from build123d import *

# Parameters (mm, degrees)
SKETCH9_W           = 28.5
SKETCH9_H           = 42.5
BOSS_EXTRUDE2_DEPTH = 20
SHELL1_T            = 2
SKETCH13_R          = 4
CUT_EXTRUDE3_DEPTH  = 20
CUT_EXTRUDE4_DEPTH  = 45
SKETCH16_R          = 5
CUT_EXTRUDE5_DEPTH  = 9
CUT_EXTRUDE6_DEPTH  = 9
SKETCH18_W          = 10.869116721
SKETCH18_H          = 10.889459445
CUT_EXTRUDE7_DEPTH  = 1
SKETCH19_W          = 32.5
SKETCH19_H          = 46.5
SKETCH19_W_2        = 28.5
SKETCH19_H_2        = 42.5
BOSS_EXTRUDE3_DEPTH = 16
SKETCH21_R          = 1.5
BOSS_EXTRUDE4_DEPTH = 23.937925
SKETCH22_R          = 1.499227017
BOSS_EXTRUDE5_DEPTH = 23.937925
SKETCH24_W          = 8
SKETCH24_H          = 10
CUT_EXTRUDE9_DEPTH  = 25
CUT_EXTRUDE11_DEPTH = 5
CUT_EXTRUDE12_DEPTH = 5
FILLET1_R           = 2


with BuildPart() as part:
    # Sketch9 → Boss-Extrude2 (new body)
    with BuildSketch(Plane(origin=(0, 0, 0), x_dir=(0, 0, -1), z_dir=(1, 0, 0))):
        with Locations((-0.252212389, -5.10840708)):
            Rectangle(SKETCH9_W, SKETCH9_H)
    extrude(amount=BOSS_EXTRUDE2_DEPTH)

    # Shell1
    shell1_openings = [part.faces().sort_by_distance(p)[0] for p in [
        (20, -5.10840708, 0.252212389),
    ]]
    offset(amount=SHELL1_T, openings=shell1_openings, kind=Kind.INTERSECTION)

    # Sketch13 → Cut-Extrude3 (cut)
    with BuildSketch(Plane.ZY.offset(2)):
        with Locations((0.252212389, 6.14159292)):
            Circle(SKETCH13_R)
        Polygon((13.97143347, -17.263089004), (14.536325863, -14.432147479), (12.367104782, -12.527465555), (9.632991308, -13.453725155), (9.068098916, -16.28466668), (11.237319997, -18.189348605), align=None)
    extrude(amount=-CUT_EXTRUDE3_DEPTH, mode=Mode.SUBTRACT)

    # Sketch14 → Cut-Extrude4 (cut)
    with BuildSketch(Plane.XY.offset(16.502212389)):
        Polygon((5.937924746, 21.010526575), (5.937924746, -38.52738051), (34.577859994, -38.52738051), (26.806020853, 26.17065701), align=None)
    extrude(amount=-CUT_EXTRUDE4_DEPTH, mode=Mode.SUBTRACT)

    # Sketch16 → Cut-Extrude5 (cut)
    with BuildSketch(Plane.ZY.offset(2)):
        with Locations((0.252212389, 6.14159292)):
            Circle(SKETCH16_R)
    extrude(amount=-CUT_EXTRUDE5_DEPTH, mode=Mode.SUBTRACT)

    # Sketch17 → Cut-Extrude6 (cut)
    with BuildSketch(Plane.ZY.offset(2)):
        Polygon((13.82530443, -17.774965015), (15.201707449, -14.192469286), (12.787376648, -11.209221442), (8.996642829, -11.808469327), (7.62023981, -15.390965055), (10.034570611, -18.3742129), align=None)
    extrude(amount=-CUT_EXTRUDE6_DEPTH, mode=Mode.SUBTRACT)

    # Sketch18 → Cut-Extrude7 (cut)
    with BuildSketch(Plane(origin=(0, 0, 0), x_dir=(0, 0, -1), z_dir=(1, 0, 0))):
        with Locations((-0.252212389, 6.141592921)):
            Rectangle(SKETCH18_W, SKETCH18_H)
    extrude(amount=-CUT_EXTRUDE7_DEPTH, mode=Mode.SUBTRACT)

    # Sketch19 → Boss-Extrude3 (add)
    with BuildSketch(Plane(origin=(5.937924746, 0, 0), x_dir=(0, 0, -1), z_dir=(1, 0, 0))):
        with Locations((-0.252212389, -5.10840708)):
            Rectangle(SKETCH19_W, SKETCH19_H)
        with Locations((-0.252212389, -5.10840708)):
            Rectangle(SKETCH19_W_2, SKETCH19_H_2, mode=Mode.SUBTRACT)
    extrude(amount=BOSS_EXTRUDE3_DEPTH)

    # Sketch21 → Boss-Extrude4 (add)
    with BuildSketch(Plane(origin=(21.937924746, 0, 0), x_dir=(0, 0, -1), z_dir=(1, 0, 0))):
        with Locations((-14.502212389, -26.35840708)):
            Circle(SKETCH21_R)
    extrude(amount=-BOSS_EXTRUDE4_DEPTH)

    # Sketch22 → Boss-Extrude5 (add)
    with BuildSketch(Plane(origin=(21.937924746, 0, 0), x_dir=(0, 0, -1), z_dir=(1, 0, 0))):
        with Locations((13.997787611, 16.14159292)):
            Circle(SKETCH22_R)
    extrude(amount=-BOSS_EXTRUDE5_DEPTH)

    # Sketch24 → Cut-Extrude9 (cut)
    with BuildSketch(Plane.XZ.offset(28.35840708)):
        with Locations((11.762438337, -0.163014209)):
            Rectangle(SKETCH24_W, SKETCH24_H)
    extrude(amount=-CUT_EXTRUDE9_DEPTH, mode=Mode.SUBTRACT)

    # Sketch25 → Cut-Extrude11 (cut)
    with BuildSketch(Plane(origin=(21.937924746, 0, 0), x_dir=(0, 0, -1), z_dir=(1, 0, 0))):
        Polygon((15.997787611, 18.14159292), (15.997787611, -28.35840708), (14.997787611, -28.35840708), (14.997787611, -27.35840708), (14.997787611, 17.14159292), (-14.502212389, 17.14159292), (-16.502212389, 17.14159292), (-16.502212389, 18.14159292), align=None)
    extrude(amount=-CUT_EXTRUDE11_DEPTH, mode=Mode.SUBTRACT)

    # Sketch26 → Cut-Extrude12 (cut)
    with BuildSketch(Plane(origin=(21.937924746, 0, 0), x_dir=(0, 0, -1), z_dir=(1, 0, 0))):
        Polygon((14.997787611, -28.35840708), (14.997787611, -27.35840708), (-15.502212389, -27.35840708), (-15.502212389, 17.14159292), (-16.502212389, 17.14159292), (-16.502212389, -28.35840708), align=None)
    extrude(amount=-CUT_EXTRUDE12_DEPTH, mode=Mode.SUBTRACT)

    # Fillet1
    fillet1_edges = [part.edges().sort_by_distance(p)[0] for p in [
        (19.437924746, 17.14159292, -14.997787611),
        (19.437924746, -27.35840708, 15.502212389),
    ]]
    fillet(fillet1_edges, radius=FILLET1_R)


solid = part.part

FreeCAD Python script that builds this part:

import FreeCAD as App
import Part
import Sketcher


def edges_at(feature, points):
    """Names of the edges that pass closest to the given points."""
    edges = feature.Shape.Edges
    near = lambda p: min(range(len(edges)), key=lambda i: edges[i].distToShape(Part.Vertex(*p))[0])
    return sorted({f"Edge{near(p) + 1}" for p in points})


def faces_at(feature, points):
    """Names of the faces that lie closest to the given points."""
    faces = feature.Shape.Faces
    near = lambda p: min(range(len(faces)), key=lambda i: faces[i].distToShape(Part.Vertex(*p))[0])
    return sorted({f"Face{near(p) + 1}" for p in points})


def add_polygon(sketch, points):
    """Adds a closed chain of lines whose ends are joined by coincident constraints."""
    first, n = sketch.GeometryCount, len(points)
    for a, b in zip(points, points[1:] + points[:1]):
        sketch.addGeometry(Part.LineSegment(App.Vector(*a, 0), App.Vector(*b, 0)), False)
    for i in range(n):
        sketch.addConstraint(Sketcher.Constraint("Coincident", first + i, 2, first + (i + 1) % n, 1))

doc = App.newDocument("Part")
body = doc.addObject("PartDesign::Body", "Body")

# Sketch on YZ plane
sketch1 = body.newObject("Sketcher::SketchObject", "Sketch")
sketch1.AttachmentSupport = (doc.getObject("YZ_Plane"), [""])
sketch1.MapMode = "FlatFace"
add_polygon(sketch1, [(16, 15), (-26, 15), (-26, -14), (16, -14)])  # lines 0-3
sketch1.addConstraint(Sketcher.Constraint("Horizontal", 0))
sketch1.addConstraint(Sketcher.Constraint("Vertical", 1))
sketch1.addConstraint(Sketcher.Constraint("Horizontal", 2))
sketch1.addConstraint(Sketcher.Constraint("Vertical", 3))
sketch1.addConstraint(Sketcher.Constraint("DistanceX", 0, 2, 0, 1, 42.5))
sketch1.addConstraint(Sketcher.Constraint("DistanceY", 1, 2, 1, 1, 28.5))
sketch1.addConstraint(Sketcher.Constraint("DistanceX", 0, 2, -1, 1, 26.358407))
sketch1.addConstraint(Sketcher.Constraint("DistanceY", -1, 1, 0, 2, 14.502212))
pad1 = body.newObject("PartDesign::Pad", "Pad")
pad1.Profile = sketch1
pad1.Length = 20
doc.recompute()

thickness = body.newObject("PartDesign::Thickness", "Thickness")
thickness.Base = (pad1, faces_at(pad1, [(20, -5.108, 0.252)]))
thickness.Value = 2
thickness.Reversed = False
thickness.Join = "Intersection"

# Sketch on YZ plane
sketch2 = body.newObject("Sketcher::SketchObject", "Sketch001")
sketch2.AttachmentSupport = (doc.getObject("YZ_Plane"), [""])
sketch2.MapMode = "FlatFace"
sketch2.AttachmentOffset = App.Placement(App.Vector(0, 0, -2), App.Rotation())
sketch2.addGeometry(Part.Circle(App.Vector(6.1, 0.3, 0), App.Vector(0, 0, 1), 4), False)  # 0
add_polygon(sketch2, [(-17.3, 14), (-14.4, 14.5), (-12.5, 12.4), (-13.5, 9.6), (-16.3, 9.1), (-18.2, 11.2)])  # lines 1-6
sketch2.addConstraint(Sketcher.Constraint("Parallel", 1, 4))
sketch2.addConstraint(Sketcher.Constraint("Parallel", 2, 5))
sketch2.addConstraint(Sketcher.Constraint("Parallel", 3, 6))
sketch2.addConstraint(Sketcher.Constraint("Equal", 1, 2))
sketch2.addConstraint(Sketcher.Constraint("Equal", 2, 3))
sketch2.addConstraint(Sketcher.Constraint("Equal", 3, 4))
sketch2.addConstraint(Sketcher.Constraint("Diameter", 0, 8.0))
sketch2.addConstraint(Sketcher.Constraint("DistanceY", -1, 1, 4, 2, 9.068099))
sketch2.addConstraint(Sketcher.Constraint("DistanceX", 4, 2, 2, 2, 3.757201))
sketch2.addConstraint(Sketcher.Constraint("Distance", 1, 2.886751))
sketch2.addConstraint(Sketcher.Constraint("DistanceY", -1, 1, 3, 2, 9.632991))
sketch2.addConstraint(Sketcher.Constraint("DistanceX", 5, 2, -1, 1, 18.189349))
sketch2.addConstraint(Sketcher.Constraint("DistanceY", -1, 1, 5, 2, 11.23732))
sketch2.addConstraint(Sketcher.Constraint("DistanceX", 1, 2, 0, 3, 20.57374))
sketch2.addConstraint(Sketcher.Constraint("DistanceY", 0, 3, 3, 2, 9.380779))
pocket1 = body.newObject("PartDesign::Pocket", "Pocket")
pocket1.Profile = sketch2
pocket1.Length = 20
pocket1.Reversed = True

# Sketch on XY plane
sketch3 = body.newObject("Sketcher::SketchObject", "Sketch002")
sketch3.AttachmentSupport = (doc.getObject("XY_Plane"), [""])
sketch3.MapMode = "FlatFace"
sketch3.AttachmentOffset = App.Placement(App.Vector(0, 0, 16.502212), App.Rotation())
add_polygon(sketch3, [(6, 21), (6, -39), (35, -39), (27, 26)])  # lines 0-3
sketch3.addConstraint(Sketcher.Constraint("Vertical", 0))
sketch3.addConstraint(Sketcher.Constraint("Horizontal", 1))
sketch3.addConstraint(Sketcher.Constraint("Distance", 2, 65.163161))
sketch3.addConstraint(Sketcher.Constraint("DistanceX", 1, 1, 1, 2, 28.639935))
sketch3.addConstraint(Sketcher.Constraint("DistanceY", 0, 2, 0, 1, 59.537907))
sketch3.addConstraint(Sketcher.Constraint("DistanceY", 0, 2, -1, 1, 38.527381))
sketch3.addConstraint(Sketcher.Constraint("DistanceX", -1, 1, 1, 2, 34.57786))
sketch3.addConstraint(Sketcher.Constraint("DistanceX", -1, 1, 2, 2, 26.806021))
pocket2 = body.newObject("PartDesign::Pocket", "Pocket001")
pocket2.Profile = sketch3
pocket2.Length = 45

# Sketch on YZ plane
sketch4 = body.newObject("Sketcher::SketchObject", "Sketch003")
sketch4.AttachmentSupport = (doc.getObject("YZ_Plane"), [""])
sketch4.MapMode = "FlatFace"
sketch4.AttachmentOffset = App.Placement(App.Vector(0, 0, -2), App.Rotation())
sketch4.addGeometry(Part.Circle(App.Vector(6, 0, 0), App.Vector(0, 0, 1), 5), False)
sketch4.addConstraint(Sketcher.Constraint("Diameter", 0, 10.0))
sketch4.addConstraint(Sketcher.Constraint("DistanceX", -1, 1, 0, 3, 6.141593))
sketch4.addConstraint(Sketcher.Constraint("DistanceY", -1, 1, 0, 3, 0.252212))
pocket3 = body.newObject("PartDesign::Pocket", "Pocket002")
pocket3.Profile = sketch4
pocket3.Length = 9
pocket3.Reversed = True

# Sketch on YZ plane
sketch5 = body.newObject("Sketcher::SketchObject", "Sketch004")
sketch5.AttachmentSupport = (doc.getObject("YZ_Plane"), [""])
sketch5.MapMode = "FlatFace"
sketch5.AttachmentOffset = App.Placement(App.Vector(0, 0, -2), App.Rotation())
add_polygon(sketch5, [(-17.8, 13.8), (-14.2, 15.2), (-11.2, 12.8), (-11.8, 9), (-15.4, 7.6), (-18.4, 10)])  # lines 0-5
sketch5.addConstraint(Sketcher.Constraint("Parallel", 0, 3))
sketch5.addConstraint(Sketcher.Constraint("Parallel", 1, 4))
sketch5.addConstraint(Sketcher.Constraint("Parallel", 2, 5))
sketch5.addConstraint(Sketcher.Constraint("Equal", 0, 1))
sketch5.addConstraint(Sketcher.Constraint("Equal", 1, 2))
sketch5.addConstraint(Sketcher.Constraint("Equal", 2, 3))
sketch5.addConstraint(Sketcher.Constraint("DistanceX", 0, 2, 2, 2, 2.384))
sketch5.addConstraint(Sketcher.Constraint("DistanceX", 0, 2, -1, 1, 14.192469))
sketch5.addConstraint(Sketcher.Constraint("DistanceX", 1, 2, -1, 1, 11.209221))
sketch5.addConstraint(Sketcher.Constraint("DistanceY", -1, 1, 3, 2, 7.62024))
sketch5.addConstraint(Sketcher.Constraint("DistanceY", -1, 1, 4, 2, 10.034571))
sketch5.addConstraint(Sketcher.Constraint("DistanceX", 4, 2, 1, 2, 7.164991))
pocket4 = body.newObject("PartDesign::Pocket", "Pocket003")
pocket4.Profile = sketch5
pocket4.Length = 9
pocket4.Reversed = True

# Sketch on YZ plane
sketch6 = body.newObject("Sketcher::SketchObject", "Sketch005")
sketch6.AttachmentSupport = (doc.getObject("YZ_Plane"), [""])
sketch6.MapMode = "FlatFace"
add_polygon(sketch6, [(12, 6), (1, 6), (1, -5), (12, -5)])  # lines 0-3
sketch6.addConstraint(Sketcher.Constraint("Horizontal", 0))
sketch6.addConstraint(Sketcher.Constraint("Vertical", 1))
sketch6.addConstraint(Sketcher.Constraint("Horizontal", 2))
sketch6.addConstraint(Sketcher.Constraint("Vertical", 3))
sketch6.addConstraint(Sketcher.Constraint("DistanceX", 0, 2, 0, 1, 10.889459))
sketch6.addConstraint(Sketcher.Constraint("DistanceY", 1, 2, 1, 1, 10.869117))
sketch6.addConstraint(Sketcher.Constraint("DistanceY", -1, 1, 0, 2, 5.686771))
sketch6.addConstraint(Sketcher.Constraint("DistanceX", -1, 1, 0, 2, 0.696863))
pocket5 = body.newObject("PartDesign::Pocket", "Pocket004")
pocket5.Profile = sketch6
pocket5.Length = 1

# Sketch on YZ plane
sketch7 = body.newObject("Sketcher::SketchObject", "Sketch006")
sketch7.AttachmentSupport = (doc.getObject("YZ_Plane"), [""])
sketch7.MapMode = "FlatFace"
sketch7.AttachmentOffset = App.Placement(App.Vector(0, 0, 5.937925), App.Rotation())
add_polygon(sketch7, [(18, 17), (-28, 17), (-28, -16), (18, -16)])  # lines 0-3
add_polygon(sketch7, [(-26, -14), (-26, 15), (16, 15), (16, -14)])  # lines 4-7
sketch7.addConstraint(Sketcher.Constraint("Horizontal", 0))
sketch7.addConstraint(Sketcher.Constraint("Vertical", 1))
sketch7.addConstraint(Sketcher.Constraint("Horizontal", 2))
sketch7.addConstraint(Sketcher.Constraint("Vertical", 3))
sketch7.addConstraint(Sketcher.Constraint("Vertical", 4))
sketch7.addConstraint(Sketcher.Constraint("Horizontal", 5))
sketch7.addConstraint(Sketcher.Constraint("Vertical", 6))
sketch7.addConstraint(Sketcher.Constraint("Horizontal", 7))
sketch7.addConstraint(Sketcher.Constraint("DistanceX", 0, 2, 0, 1, 46.5))
sketch7.addConstraint(Sketcher.Constraint("DistanceX", 5, 1, 5, 2, 42.5))
sketch7.addConstraint(Sketcher.Constraint("DistanceY", 1, 2, 1, 1, 32.5))
sketch7.addConstraint(Sketcher.Constraint("DistanceY", 4, 1, 4, 2, 28.5))
sketch7.addConstraint(Sketcher.Constraint("DistanceX", 0, 2, 4, 2, 2.0))
sketch7.addConstraint(Sketcher.Constraint("DistanceY", 4, 2, 0, 2, 2.0))
sketch7.addConstraint(Sketcher.Constraint("DistanceX", 0, 2, -1, 1, 28.358407))
sketch7.addConstraint(Sketcher.Constraint("DistanceY", -1, 1, 0, 2, 16.502212))
pad2 = body.newObject("PartDesign::Pad", "Pad001")
pad2.Profile = sketch7
pad2.Length = 16

# Sketch on YZ plane
sketch8 = body.newObject("Sketcher::SketchObject", "Sketch007")
sketch8.AttachmentSupport = (doc.getObject("YZ_Plane"), [""])
sketch8.MapMode = "FlatFace"
sketch8.AttachmentOffset = App.Placement(App.Vector(0, 0, 21.937925), App.Rotation())
sketch8.addGeometry(Part.Circle(App.Vector(-26.4, 14.5, 0), App.Vector(0, 0, 1), 1.5), False)
sketch8.addConstraint(Sketcher.Constraint("Diameter", 0, 3.0))
sketch8.addConstraint(Sketcher.Constraint("DistanceX", 0, 3, -1, 1, 26.358407))
sketch8.addConstraint(Sketcher.Constraint("DistanceY", -1, 1, 0, 3, 14.502212))
pad3 = body.newObject("PartDesign::Pad", "Pad002")
pad3.Profile = sketch8
pad3.Length = 23.937925
pad3.Reversed = True

# Sketch on YZ plane
sketch9 = body.newObject("Sketcher::SketchObject", "Sketch008")
sketch9.AttachmentSupport = (doc.getObject("YZ_Plane"), [""])
sketch9.MapMode = "FlatFace"
sketch9.AttachmentOffset = App.Placement(App.Vector(0, 0, 21.937925), App.Rotation())
sketch9.addGeometry(Part.Circle(App.Vector(16.1, -14, 0), App.Vector(0, 0, 1), 1.5), False)
sketch9.addConstraint(Sketcher.Constraint("Diameter", 0, 2.998454))
sketch9.addConstraint(Sketcher.Constraint("DistanceX", -1, 1, 0, 3, 16.141593))
sketch9.addConstraint(Sketcher.Constraint("DistanceY", 0, 3, -1, 1, 13.997788))
pad4 = body.newObject("PartDesign::Pad", "Pad003")
pad4.Profile = sketch9
pad4.Length = 23.937925
pad4.Reversed = True

# Sketch on XZ plane
sketch10 = body.newObject("Sketcher::SketchObject", "Sketch009")
sketch10.AttachmentSupport = (doc.getObject("XZ_Plane"), [""])
sketch10.MapMode = "FlatFace"
sketch10.AttachmentOffset = App.Placement(App.Vector(0, 0, 28.358407), App.Rotation())
add_polygon(sketch10, [(8, 5), (8, -5), (16, -5), (16, 5)])  # lines 0-3
sketch10.addConstraint(Sketcher.Constraint("Vertical", 0))
sketch10.addConstraint(Sketcher.Constraint("Horizontal", 1))
sketch10.addConstraint(Sketcher.Constraint("Vertical", 2))
sketch10.addConstraint(Sketcher.Constraint("Horizontal", 3))
sketch10.addConstraint(Sketcher.Constraint("DistanceX", 1, 1, 1, 2, 8.0))
sketch10.addConstraint(Sketcher.Constraint("DistanceY", 0, 2, 0, 1, 10.0))
sketch10.addConstraint(Sketcher.Constraint("DistanceX", -1, 1, 0, 2, 7.762438))
sketch10.addConstraint(Sketcher.Constraint("DistanceY", 0, 2, -1, 1, 5.163014))
pocket6 = body.newObject("PartDesign::Pocket", "Pocket005")
pocket6.Profile = sketch10
pocket6.Length = 25

# Sketch on YZ plane
sketch11 = body.newObject("Sketcher::SketchObject", "Sketch010")
sketch11.AttachmentSupport = (doc.getObject("YZ_Plane"), [""])
sketch11.MapMode = "FlatFace"
sketch11.AttachmentOffset = App.Placement(App.Vector(0, 0, 21.937925), App.Rotation())
add_polygon(sketch11, [(-28.4, -16), (18.1, -16), (18.1, 16.5), (17.1, 16.5), (17.1, -15), (-28.4, -15)])  # lines 0-5
sketch11.addConstraint(Sketcher.Constraint("Horizontal", 0))
sketch11.addConstraint(Sketcher.Constraint("Vertical", 1))
sketch11.addConstraint(Sketcher.Constraint("Horizontal", 2))
sketch11.addConstraint(Sketcher.Constraint("Vertical", 3))
sketch11.addConstraint(Sketcher.Constraint("Horizontal", 4))
sketch11.addConstraint(Sketcher.Constraint("Vertical", 5))
sketch11.addConstraint(Sketcher.Constraint("Equal", 2, 5))
sketch11.addConstraint(Sketcher.Constraint("DistanceX", 2, 2, 2, 1, 1.0))
sketch11.addConstraint(Sketcher.Constraint("DistanceX", 0, 1, 0, 2, 46.5))
sketch11.addConstraint(Sketcher.Constraint("DistanceY", 1, 1, 1, 2, 32.5))
sketch11.addConstraint(Sketcher.Constraint("DistanceX", -1, 1, 0, 2, 18.141593))
sketch11.addConstraint(Sketcher.Constraint("DistanceY", 0, 2, -1, 1, 15.997788))
pocket7 = body.newObject("PartDesign::Pocket", "Pocket006")
pocket7.Profile = sketch11
pocket7.Length = 5

# Sketch on YZ plane
sketch12 = body.newObject("Sketcher::SketchObject", "Sketch011")
sketch12.AttachmentSupport = (doc.getObject("YZ_Plane"), [""])
sketch12.MapMode = "FlatFace"
sketch12.AttachmentOffset = App.Placement(App.Vector(0, 0, 21.937925), App.Rotation())
add_polygon(sketch12, [(-28.4, -15), (-27.4, -15), (-27.4, 15.5), (17.1, 15.5), (17.1, 16.5), (-28.4, 16.5)])  # lines 0-5
sketch12.addConstraint(Sketcher.Constraint("Horizontal", 0))
sketch12.addConstraint(Sketcher.Constraint("Vertical", 1))
sketch12.addConstraint(Sketcher.Constraint("Horizontal", 2))
sketch12.addConstraint(Sketcher.Constraint("Vertical", 3))
sketch12.addConstraint(Sketcher.Constraint("Horizontal", 4))
sketch12.addConstraint(Sketcher.Constraint("Vertical", 5))
sketch12.addConstraint(Sketcher.Constraint("Equal", 0, 3))
sketch12.addConstraint(Sketcher.Constraint("DistanceX", 0, 1, 0, 2, 1.0))
sketch12.addConstraint(Sketcher.Constraint("DistanceX", 2, 1, 2, 2, 44.5))
sketch12.addConstraint(Sketcher.Constraint("DistanceY", 1, 1, 1, 2, 30.5))
sketch12.addConstraint(Sketcher.Constraint("DistanceX", 0, 2, -1, 1, 27.358407))
sketch12.addConstraint(Sketcher.Constraint("DistanceY", 0, 2, -1, 1, 14.997788))
pocket8 = body.newObject("PartDesign::Pocket", "Pocket007")
pocket8.Profile = sketch12
pocket8.Length = 5
doc.recompute()

fillet = body.newObject("PartDesign::Fillet", "Fillet")
fillet.Base = (pocket8, edges_at(pocket8, [(19.438, 17.142, -14.998), (19.438, -27.358, 15.502)]))
fillet.Radius = 2

doc.recompute()
